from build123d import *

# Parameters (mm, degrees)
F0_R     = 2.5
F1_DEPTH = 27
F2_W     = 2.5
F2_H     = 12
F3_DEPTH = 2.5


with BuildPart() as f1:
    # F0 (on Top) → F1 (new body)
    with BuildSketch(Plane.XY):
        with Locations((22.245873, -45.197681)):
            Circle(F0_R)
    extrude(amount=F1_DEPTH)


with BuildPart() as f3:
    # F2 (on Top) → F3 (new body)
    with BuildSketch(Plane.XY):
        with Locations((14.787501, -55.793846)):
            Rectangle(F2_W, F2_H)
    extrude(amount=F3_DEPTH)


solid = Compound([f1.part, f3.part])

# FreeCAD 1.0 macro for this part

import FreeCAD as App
import Part
import Sketcher
from FreeCAD import Vector
Q = App.Units.Quantity

doc = App.newDocument("Part")
body = doc.addObject("PartDesign::Body", "Body")

sketch1 = body.newObject("Sketcher::SketchObject", "Sketch")
sketch1.AttachmentSupport = (doc.getObject("XY_Plane"), [""])
sketch1.MapMode = "FlatFace"
sketch1.addGeometry(Part.Circle(Vector(22.245873, -45.197681, 0), Vector(0, 0, 1), 2.5), False)
sketch1.addConstraint([
    Sketcher.Constraint("Diameter", 0, Q("5 mm")),
    Sketcher.Constraint("DistanceY", 0, 3, -1, 1, Q("45.197681 mm")),
    Sketcher.Constraint("DistanceX", -1, 1, 0, 3, Q("22.245873 mm")),
])
pad1 = body.newObject("PartDesign::Pad", "Pad")
pad1.Profile = sketch1
pad1.Length = 27
body2 = doc.addObject("PartDesign::Body", "Body001")

sketch2 = body2.newObject("Sketcher::SketchObject", "Sketch001")
sketch2.AttachmentSupport = (doc.getObject("XY_Plane001"), [""])
sketch2.MapMode = "FlatFace"
sketch2.addGeometry([
    Part.LineSegment(Vector(13.537501, -49.793846, 0), Vector(13.537501, -61.793846, 0)),
    Part.LineSegment(Vector(13.537501, -61.793846, 0), Vector(16.037501, -61.793846, 0)),
    Part.LineSegment(Vector(16.037501, -61.793846, 0), Vector(16.037501, -49.793846, 0)),
    Part.LineSegment(Vector(16.037501, -49.793846, 0), Vector(13.537501, -49.793846, 0)),
], False)
sketch2.addConstraint([
    Sketcher.Constraint("Coincident", 0, 2, 1, 1),
    Sketcher.Constraint("Coincident", 1, 2, 2, 1),
    Sketcher.Constraint("Coincident", 2, 2, 3, 1),
    Sketcher.Constraint("Coincident", 3, 2, 0, 1),
    Sketcher.Constraint("Vertical", 0),
    Sketcher.Constraint("Horizontal", 1),
    Sketcher.Constraint("Vertical", 2),
    Sketcher.Constraint("Horizontal", 3),
    Sketcher.Constraint("DistanceY", 0, 2, 0, 1, Q("12 mm")),
    Sketcher.Constraint("DistanceX", 1, 1, 1, 2, Q("2.5 mm")),
    Sketcher.Constraint("DistanceX", -1, 1, 0, 2, Q("13.537501 mm")),
    Sketcher.Constraint("DistanceY", 0, 2, -1, 1, Q("61.793846 mm")),
])
pad2 = body2.newObject("PartDesign::Pad", "Pad001")
pad2.Profile = sketch2
pad2.Length = 2.5

doc.recompute()
